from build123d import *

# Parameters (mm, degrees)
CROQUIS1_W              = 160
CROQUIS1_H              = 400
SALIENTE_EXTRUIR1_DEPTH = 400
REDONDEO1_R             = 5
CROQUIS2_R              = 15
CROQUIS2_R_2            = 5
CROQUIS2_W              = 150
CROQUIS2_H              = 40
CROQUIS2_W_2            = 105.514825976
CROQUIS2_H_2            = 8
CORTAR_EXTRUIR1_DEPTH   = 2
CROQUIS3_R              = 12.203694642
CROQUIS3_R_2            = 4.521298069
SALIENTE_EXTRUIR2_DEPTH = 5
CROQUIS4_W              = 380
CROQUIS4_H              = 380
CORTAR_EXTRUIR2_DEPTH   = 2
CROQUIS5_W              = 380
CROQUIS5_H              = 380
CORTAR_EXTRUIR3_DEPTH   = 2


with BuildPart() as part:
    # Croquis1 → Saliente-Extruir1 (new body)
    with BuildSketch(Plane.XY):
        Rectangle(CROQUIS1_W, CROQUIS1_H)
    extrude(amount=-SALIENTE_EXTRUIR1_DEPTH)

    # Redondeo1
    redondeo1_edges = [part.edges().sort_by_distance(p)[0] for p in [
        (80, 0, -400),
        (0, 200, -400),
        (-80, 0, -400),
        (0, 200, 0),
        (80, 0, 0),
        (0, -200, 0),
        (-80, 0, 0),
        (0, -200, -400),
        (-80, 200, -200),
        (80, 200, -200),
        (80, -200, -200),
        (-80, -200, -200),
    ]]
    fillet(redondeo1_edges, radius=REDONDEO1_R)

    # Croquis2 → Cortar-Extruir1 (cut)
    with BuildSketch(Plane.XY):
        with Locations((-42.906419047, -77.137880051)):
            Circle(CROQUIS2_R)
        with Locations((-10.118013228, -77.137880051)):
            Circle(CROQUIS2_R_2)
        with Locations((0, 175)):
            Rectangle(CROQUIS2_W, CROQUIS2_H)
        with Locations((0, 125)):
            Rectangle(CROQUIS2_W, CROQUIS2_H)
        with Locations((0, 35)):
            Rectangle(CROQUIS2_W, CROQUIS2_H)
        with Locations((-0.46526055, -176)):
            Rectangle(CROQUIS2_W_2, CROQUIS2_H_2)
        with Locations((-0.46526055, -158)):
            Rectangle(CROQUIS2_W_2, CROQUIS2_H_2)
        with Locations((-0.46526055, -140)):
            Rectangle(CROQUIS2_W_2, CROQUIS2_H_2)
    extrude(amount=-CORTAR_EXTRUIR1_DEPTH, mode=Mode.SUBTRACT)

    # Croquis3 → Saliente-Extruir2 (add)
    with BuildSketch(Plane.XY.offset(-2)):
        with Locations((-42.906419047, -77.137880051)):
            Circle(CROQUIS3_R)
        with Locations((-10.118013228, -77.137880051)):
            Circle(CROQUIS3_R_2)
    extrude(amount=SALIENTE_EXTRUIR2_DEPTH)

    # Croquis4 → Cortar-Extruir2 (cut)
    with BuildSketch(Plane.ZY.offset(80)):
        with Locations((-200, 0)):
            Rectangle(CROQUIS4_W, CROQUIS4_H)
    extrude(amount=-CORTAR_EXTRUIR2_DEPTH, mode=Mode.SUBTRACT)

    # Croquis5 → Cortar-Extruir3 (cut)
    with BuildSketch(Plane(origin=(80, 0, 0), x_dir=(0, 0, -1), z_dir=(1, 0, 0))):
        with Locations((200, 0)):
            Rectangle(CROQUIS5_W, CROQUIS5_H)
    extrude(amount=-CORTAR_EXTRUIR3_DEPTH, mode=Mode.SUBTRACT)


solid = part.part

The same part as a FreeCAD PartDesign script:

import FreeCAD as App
import Part
import Sketcher
from FreeCAD import Vector
Q = App.Units.Quantity


def add_polygon(sketch, points):
    """Adds a closed chain of lines whose ends are joined by coincident constraints."""
    first, n = sketch.GeometryCount, len(points)
    for a, b in zip(points, points[1:] + points[:1]):
        sketch.addGeometry(Part.LineSegment(App.Vector(*a, 0), App.Vector(*b, 0)), False)
    for i in range(n):
        sketch.addConstraint(Sketcher.Constraint("Coincident", first + i, 2, first + (i + 1) % n, 1))

doc = App.newDocument("Part")
body = doc.addObject("PartDesign::Body", "Body")

sketch1 = body.newObject("Sketcher::SketchObject", "Sketch")
sketch1.AttachmentSupport = (doc.getObject("XY_Plane"), [""])
sketch1.MapMode = "FlatFace"
add_polygon(sketch1, [(-80, 200), (-80, -200), (80, -200), (80, 200)])
sketch1.addConstraint([
    Sketcher.Constraint("Vertical", 0),
    Sketcher.Constraint("Horizontal", 1),
    Sketcher.Constraint("Vertical", 2),
    Sketcher.Constraint("Horizontal", 3),
    Sketcher.Constraint("Symmetric", 0, 2, 2, 2, -1, 1),
    Sketcher.Constraint("DistanceX", 1, 1, 1, 2, Q("160 mm")),
    Sketcher.Constraint("DistanceY", 0, 2, 0, 1, Q("400 mm")),
])
pad1 = body.newObject("PartDesign::Pad", "Pad")
pad1.Profile = sketch1
pad1.Length = 400
pad1.Reversed = True
doc.recompute()

fillet = body.newObject("PartDesign::Fillet", "Fillet")
fillet.Base = (pad1, ["Edge1"])
fillet.UseAllEdges = True
fillet.Radius = 5

sketch2 = body.newObject("Sketcher::SketchObject", "Sketch001")
sketch2.AttachmentSupport = (doc.getObject("XY_Plane"), [""])
sketch2.MapMode = "FlatFace"
sketch2.addGeometry(Part.Circle(Vector(-43, -77, 0), Vector(0, 0, 1), 15), False)
sketch2.addGeometry(Part.Circle(Vector(-10, -77, 0), Vector(0, 0, 1), 5), False)
add_polygon(sketch2, [(-75, 195), (-75, 155), (75, 155), (75, 195)])
add_polygon(sketch2, [(-75, 145), (-75, 105), (75, 105), (75, 145)])
add_polygon(sketch2, [(-75, 55), (-75, 15), (75, 15), (75, 55)])
add_polygon(sketch2, [(-53, -172), (-53, -180), (52, -180), (52, -172)])
add_polygon(sketch2, [(-53, -154), (-53, -162), (52, -162), (52, -154)])
add_polygon(sketch2, [(-53, -136), (-53, -144), (52, -144), (52, -136)])
sketch2.addConstraint([
    Sketcher.Constraint("Vertical", 2),
    Sketcher.Constraint("Horizontal", 3),
    Sketcher.Constraint("Vertical", 4),
    Sketcher.Constraint("Horizontal", 5),
    Sketcher.Constraint("Vertical", 6),
    Sketcher.Constraint("Horizontal", 7),
    Sketcher.Constraint("Vertical", 8),
    Sketcher.Constraint("Horizontal", 9),
    Sketcher.Constraint("Vertical", 10),
    Sketcher.Constraint("Horizontal", 11),
    Sketcher.Constraint("Vertical", 12),
    Sketcher.Constraint("Horizontal", 13),
    Sketcher.Constraint("Vertical", 14),
    Sketcher.Constraint("Horizontal", 15),
    Sketcher.Constraint("Vertical", 16),
    Sketcher.Constraint("Horizontal", 17),
    Sketcher.Constraint("Vertical", 18),
    Sketcher.Constraint("Horizontal", 19),
    Sketcher.Constraint("Vertical", 20),
    Sketcher.Constraint("Horizontal", 21),
    Sketcher.Constraint("Vertical", 22),
    Sketcher.Constraint("Horizontal", 23),
    Sketcher.Constraint("Vertical", 24),
    Sketcher.Constraint("Horizontal", 25),
    Sketcher.Constraint("Horizontal", 0, 3, 1, 3),
    Sketcher.Constraint("Vertical", 5, 2, 6, 2),
    Sketcher.Constraint("Vertical", 4, 2, 7, 2),
    Sketcher.Constraint("Vertical", 9, 2, 10, 2),
    Sketcher.Constraint("Vertical", 8, 2, 11, 2),
    Sketcher.Constraint("Vertical", 17, 2, 18, 2),
    Sketcher.Constraint("Vertical", 16, 2, 19, 2),
    Sketcher.Constraint("Vertical", 21, 2, 22, 2),
    Sketcher.Constraint("Vertical", 20, 2, 23, 2),
    Sketcher.Constraint("Equal", 4, 6),
    Sketcher.Constraint("Equal", 8, 10),
    Sketcher.Constraint("Equal", 16, 18),
    Sketcher.Constraint("Equal", 20, 22),
    Sketcher.Constraint("Diameter", 0, Q("30 mm")),
    Sketcher.Constraint("Diameter", 1, Q("10 mm")),
    Sketcher.Constraint("DistanceX", 3, 1, 3, 2, Q("150 mm")),
    Sketcher.Constraint("DistanceY", 2, 2, 2, 1, Q("40 mm")),
    Sketcher.Constraint("DistanceY", 14, 2, 14, 1, Q("8 mm")),
    Sketcher.Constraint("DistanceX", 2, 2, -1, 1, Q("75 mm")),
    Sketcher.Constraint("DistanceY", -1, 1, 2, 2, Q("155 mm")),
    Sketcher.Constraint("DistanceY", -1, 1, 6, 2, Q("105 mm")),
    Sketcher.Constraint("DistanceY", -1, 1, 10, 2, Q("15 mm")),
    Sketcher.Constraint("DistanceY", 14, 2, -1, 1, Q("180 mm")),
    Sketcher.Constraint("DistanceY", 18, 2, -1, 1, Q("162 mm")),
    Sketcher.Constraint("DistanceY", 22, 2, -1, 1, Q("144 mm")),
    Sketcher.Constraint("DistanceX", 15, 1, 15, 2, Q("105.514826 mm")),
    Sketcher.Constraint("DistanceX", 0, 3, -1, 1, Q("42.906419 mm")),
    Sketcher.Constraint("DistanceY", 0, 3, -1, 1, Q("77.13788 mm")),
    Sketcher.Constraint("DistanceX", 14, 2, 1, 3, Q("43.10466 mm")),
    Sketcher.Constraint("DistanceX", 0, 3, 15, 2, Q("95.198571 mm")),
])
pocket1 = body.newObject("PartDesign::Pocket", "Pocket")
pocket1.Profile = sketch2
pocket1.Length = 2

sketch3 = body.newObject("Sketcher::SketchObject", "Sketch002")
sketch3.AttachmentSupport = (doc.getObject("XY_Plane"), [""])
sketch3.MapMode = "FlatFace"
sketch3.AttachmentOffset = App.Placement(Vector(0, 0, -2), App.Rotation())
sketch3.addGeometry([
    Part.Circle(Vector(-42.9, -77.1, 0), Vector(0, 0, 1), 12.2),
    Part.Circle(Vector(-10.1, -77.1, 0), Vector(0, 0, 1), 4.5),
], False)
sketch3.addConstraint([
    Sketcher.Constraint("Horizontal", 0, 3, 1, 3),
    Sketcher.Constraint("Diameter", 0, Q("24.407389 mm")),
    Sketcher.Constraint("Diameter", 1, Q("9.042596 mm")),
    Sketcher.Constraint("DistanceX", 0, 3, -1, 1, Q("42.906419 mm")),
    Sketcher.Constraint("DistanceY", 0, 3, -1, 1, Q("77.13788 mm")),
    Sketcher.Constraint("DistanceX", 1, 3, -1, 1, Q("10.118013 mm")),
])
pad2 = body.newObject("PartDesign::Pad", "Pad001")
pad2.Profile = sketch3
pad2.Length = 5

sketch4 = body.newObject("Sketcher::SketchObject", "Sketch003")
sketch4.AttachmentSupport = (doc.getObject("YZ_Plane"), [""])
sketch4.MapMode = "FlatFace"
sketch4.AttachmentOffset = App.Placement(Vector(0, 0, -80), App.Rotation())
add_polygon(sketch4, [(190, -390), (-190, -390), (-190, -10), (190, -10)])
sketch4.addConstraint([
    Sketcher.Constraint("Horizontal", 0),
    Sketcher.Constraint("Vertical", 1),
    Sketcher.Constraint("Horizontal", 2),
    Sketcher.Constraint("Vertical", 3),
    Sketcher.Constraint("Equal", 2, 1),
    Sketcher.Constraint("DistanceX", 0, 2, 0, 1, Q("380 mm")),
    Sketcher.Constraint("DistanceX", 0, 2, -1, 1, Q("190 mm")),
    Sketcher.Constraint("DistanceY", 0, 2, -1, 1, Q("390 mm")),
])
pocket2 = body.newObject("PartDesign::Pocket", "Pocket001")
pocket2.Profile = sketch4
pocket2.Length = 2
pocket2.Reversed = True

sketch5 = body.newObject("Sketcher::SketchObject", "Sketch004")
sketch5.AttachmentSupport = (doc.getObject("YZ_Plane"), [""])
sketch5.MapMode = "FlatFace"
sketch5.AttachmentOffset = App.Placement(Vector(0, 0, 80), App.Rotation())
add_polygon(sketch5, [(190, -10), (-190, -10), (-190, -390), (190, -390)])
sketch5.addConstraint([
    Sketcher.Constraint("Horizontal", 0),
    Sketcher.Constraint("Vertical", 1),
    Sketcher.Constraint("Horizontal", 2),
    Sketcher.Constraint("Vertical", 3),
    Sketcher.Constraint("Equal", 2, 1),
    Sketcher.Constraint("DistanceX", 0, 2, 0, 1, Q("380 mm")),
    Sketcher.Constraint("DistanceX", 0, 2, -1, 1, Q("190 mm")),
    Sketcher.Constraint("DistanceY", 0, 2, -1, 1, Q("10 mm")),
])
pocket3 = body.newObject("PartDesign::Pocket", "Pocket002")
pocket3.Profile = sketch5
pocket3.Length = 2

doc.recompute()
